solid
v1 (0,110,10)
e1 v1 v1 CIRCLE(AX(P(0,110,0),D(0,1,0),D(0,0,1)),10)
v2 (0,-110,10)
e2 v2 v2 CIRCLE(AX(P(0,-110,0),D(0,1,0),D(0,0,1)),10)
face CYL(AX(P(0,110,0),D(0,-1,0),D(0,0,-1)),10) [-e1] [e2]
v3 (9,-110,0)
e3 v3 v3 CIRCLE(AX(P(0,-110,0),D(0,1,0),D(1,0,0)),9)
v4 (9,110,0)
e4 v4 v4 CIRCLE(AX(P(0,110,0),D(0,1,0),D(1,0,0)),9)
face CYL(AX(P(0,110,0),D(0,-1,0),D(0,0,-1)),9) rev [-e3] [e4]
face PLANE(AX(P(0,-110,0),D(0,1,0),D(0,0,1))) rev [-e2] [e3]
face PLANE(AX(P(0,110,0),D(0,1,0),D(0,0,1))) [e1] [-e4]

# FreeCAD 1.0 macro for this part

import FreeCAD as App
import Part
import Sketcher

V = App.Vector

doc = App.newDocument("Part")
params = doc.addObject("Spreadsheet::Sheet", "Params")
for row, (alias, value) in enumerate([
    ("sketch1_diameter", "20 mm"),
    ("sketch1_diameter2", "18 mm"),
    ("pad1_length", "220 mm"),
], start=1):
    params.set(f"A{row}", alias)
    params.set(f"B{row}", "=" + value)
    params.setAlias(f"B{row}", alias)

body = doc.addObject("PartDesign::Body", "Body")

sketch1 = body.newObject("Sketcher::SketchObject", "Sketch")
sketch1.AttachmentSupport = (doc.getObject("XZ_Plane"), [""])
sketch1.MapMode = "FlatFace"
sketch1.addGeometry([
    Part.Circle(V(0, 0, 0), V(0, 0, 1), 10),
    Part.Circle(V(0, 0, 0), V(0, 0, 1), 9),
], False)
sketch1.addConstraint([
    Sketcher.Constraint("Coincident", 0, 3, -1, 1),
    Sketcher.Constraint("Coincident", 1, 3, -1, 1),
    Sketcher.Constraint("Diameter", 0, 20.0),
    Sketcher.Constraint("Diameter", 1, 18.0),
])
sketch1.setExpression("Constraints[2]", "Params.sketch1_diameter")
sketch1.setExpression("Constraints[3]", "Params.sketch1_diameter2")
pad1 = body.newObject("PartDesign::Pad", "Pad")
pad1.Profile = sketch1
pad1.setExpression("Length", "Params.pad1_length")
pad1.Midplane = True

doc.recompute()
